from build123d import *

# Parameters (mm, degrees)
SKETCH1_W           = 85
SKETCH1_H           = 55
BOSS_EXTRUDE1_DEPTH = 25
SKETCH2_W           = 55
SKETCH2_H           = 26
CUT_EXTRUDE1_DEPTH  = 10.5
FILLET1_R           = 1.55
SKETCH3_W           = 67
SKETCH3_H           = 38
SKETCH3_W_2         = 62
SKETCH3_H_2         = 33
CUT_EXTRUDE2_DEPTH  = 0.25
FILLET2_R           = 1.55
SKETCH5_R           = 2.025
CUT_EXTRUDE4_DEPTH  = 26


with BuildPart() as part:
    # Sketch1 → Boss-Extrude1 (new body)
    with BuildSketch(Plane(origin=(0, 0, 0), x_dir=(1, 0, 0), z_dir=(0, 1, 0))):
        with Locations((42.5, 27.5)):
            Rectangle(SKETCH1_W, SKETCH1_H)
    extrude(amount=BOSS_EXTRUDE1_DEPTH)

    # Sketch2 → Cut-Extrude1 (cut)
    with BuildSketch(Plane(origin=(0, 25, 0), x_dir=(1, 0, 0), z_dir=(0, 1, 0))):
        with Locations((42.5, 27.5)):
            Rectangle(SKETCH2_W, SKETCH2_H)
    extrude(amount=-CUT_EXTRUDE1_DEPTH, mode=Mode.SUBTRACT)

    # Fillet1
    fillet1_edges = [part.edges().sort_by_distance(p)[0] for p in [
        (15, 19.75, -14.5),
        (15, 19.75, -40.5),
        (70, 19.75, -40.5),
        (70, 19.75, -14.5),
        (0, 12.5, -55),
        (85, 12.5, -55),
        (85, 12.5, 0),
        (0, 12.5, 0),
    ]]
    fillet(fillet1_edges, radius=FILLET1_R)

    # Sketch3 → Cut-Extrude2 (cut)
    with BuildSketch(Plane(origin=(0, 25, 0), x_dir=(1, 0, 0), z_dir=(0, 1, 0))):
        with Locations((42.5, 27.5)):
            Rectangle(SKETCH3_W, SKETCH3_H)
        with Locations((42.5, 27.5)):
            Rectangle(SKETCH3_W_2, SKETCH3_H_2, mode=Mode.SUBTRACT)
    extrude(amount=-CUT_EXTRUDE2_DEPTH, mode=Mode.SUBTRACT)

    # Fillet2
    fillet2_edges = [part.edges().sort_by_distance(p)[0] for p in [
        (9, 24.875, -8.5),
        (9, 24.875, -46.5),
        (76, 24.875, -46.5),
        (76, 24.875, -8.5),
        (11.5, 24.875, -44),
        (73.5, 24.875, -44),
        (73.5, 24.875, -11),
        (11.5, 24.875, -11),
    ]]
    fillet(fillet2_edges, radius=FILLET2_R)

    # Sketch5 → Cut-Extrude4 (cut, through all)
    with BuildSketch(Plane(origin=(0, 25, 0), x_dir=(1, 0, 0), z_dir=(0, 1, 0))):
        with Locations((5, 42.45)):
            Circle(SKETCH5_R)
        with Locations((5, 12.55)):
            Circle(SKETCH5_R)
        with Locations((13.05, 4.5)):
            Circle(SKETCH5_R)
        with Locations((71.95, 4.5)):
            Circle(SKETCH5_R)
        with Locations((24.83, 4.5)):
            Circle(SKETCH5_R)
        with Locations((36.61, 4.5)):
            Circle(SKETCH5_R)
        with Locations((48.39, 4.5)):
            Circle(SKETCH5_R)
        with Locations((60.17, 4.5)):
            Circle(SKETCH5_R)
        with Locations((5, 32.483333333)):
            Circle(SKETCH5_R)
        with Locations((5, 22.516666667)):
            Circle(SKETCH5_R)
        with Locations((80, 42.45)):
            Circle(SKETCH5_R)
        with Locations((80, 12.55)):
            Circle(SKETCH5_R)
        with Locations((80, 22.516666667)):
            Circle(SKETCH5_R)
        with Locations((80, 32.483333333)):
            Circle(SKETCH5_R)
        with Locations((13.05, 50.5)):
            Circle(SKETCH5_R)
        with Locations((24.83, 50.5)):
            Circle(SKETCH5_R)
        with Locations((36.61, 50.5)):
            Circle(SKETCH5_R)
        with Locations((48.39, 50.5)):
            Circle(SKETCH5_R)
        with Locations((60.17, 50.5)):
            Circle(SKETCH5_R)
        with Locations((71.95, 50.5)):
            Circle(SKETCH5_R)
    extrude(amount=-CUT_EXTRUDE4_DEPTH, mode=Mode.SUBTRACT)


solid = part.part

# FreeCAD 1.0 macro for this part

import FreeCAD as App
import Part
import Sketcher
from FreeCAD import Vector


def edges_at(feature, points):
    """Names of the edges that pass closest to the given points."""
    edges = feature.Shape.Edges
    near = lambda p: min(range(len(edges)), key=lambda i: edges[i].distToShape(Part.Vertex(*p))[0])
    return sorted({f"Edge{near(p) + 1}" for p in points})


def add_polygon(sketch, points):
    """Adds a closed chain of lines whose ends are joined by coincident constraints."""
    first, n = sketch.GeometryCount, len(points)
    for a, b in zip(points, points[1:] + points[:1]):
        sketch.addGeometry(Part.LineSegment(App.Vector(*a, 0), App.Vector(*b, 0)), False)
    for i in range(n):
        sketch.addConstraint(Sketcher.Constraint("Coincident", first + i, 2, first + (i + 1) % n, 1))

doc = App.newDocument("Part")
body = doc.addObject("PartDesign::Body", "Body")

sketch1 = body.newObject("Sketcher::SketchObject", "Sketch")
sketch1.AttachmentSupport = (doc.getObject("XZ_Plane"), [""])
sketch1.MapMode = "FlatFace"
add_polygon(sketch1, [(0, -55), (0, 0), (85, 0), (85, -55)])
sketch1.addConstraint([
    Sketcher.Constraint("Vertical", 0),
    Sketcher.Constraint("Horizontal", 1),
    Sketcher.Constraint("Vertical", 2),
    Sketcher.Constraint("Horizontal", 3),
    Sketcher.Constraint("Coincident", 0, 2, -1, 1),
    Sketcher.Constraint("DistanceX", 1, 1, 1, 2, 85.0),
    Sketcher.Constraint("DistanceY", 0, 1, 0, 2, 55.0),
])
pad1 = body.newObject("PartDesign::Pad", "Pad")
pad1.Profile = sketch1
pad1.Length = 25
pad1.Reversed = True

sketch2 = body.newObject("Sketcher::SketchObject", "Sketch001")
sketch2.AttachmentSupport = (doc.getObject("XZ_Plane"), [""])
sketch2.MapMode = "FlatFace"
sketch2.AttachmentOffset = App.Placement(Vector(0, 0, -25), App.Rotation())
add_polygon(sketch2, [(15, -40.5), (15, -14.5), (70, -14.5), (70, -40.5)])
sketch2.addConstraint([
    Sketcher.Constraint("Vertical", 0),
    Sketcher.Constraint("Horizontal", 1),
    Sketcher.Constraint("Vertical", 2),
    Sketcher.Constraint("Horizontal", 3),
    Sketcher.Constraint("DistanceX", 1, 1, 1, 2, 55.0),
    Sketcher.Constraint("DistanceY", 0, 1, 0, 2, 26.0),
    Sketcher.Constraint("DistanceX", -1, 1, 0, 2, 15.0),
    Sketcher.Constraint("DistanceY", 0, 2, -1, 1, 14.5),
])
pocket1 = body.newObject("PartDesign::Pocket", "Pocket")
pocket1.Profile = sketch2
pocket1.Length = 10.5
pocket1.Reversed = True
doc.recompute()

fillet = body.newObject("PartDesign::Fillet", "Fillet")
fillet.Base = (pocket1, edges_at(pocket1, [
    (15, 19.75, -14.5),
    (15, 19.75, -40.5),
    (70, 19.75, -40.5),
    (70, 19.75, -14.5),
    (0, 12.5, -55),
    (85, 12.5, -55),
    (85, 12.5, 0),
    (0, 12.5, 0),
]))
fillet.Radius = 1.55

sketch3 = body.newObject("Sketcher::SketchObject", "Sketch002")
sketch3.AttachmentSupport = (doc.getObject("XZ_Plane"), [""])
sketch3.MapMode = "FlatFace"
sketch3.AttachmentOffset = App.Placement(Vector(0, 0, -25), App.Rotation())
add_polygon(sketch3, [(9, -46.5), (9, -8.5), (76, -8.5), (76, -46.5)])
add_polygon(sketch3, [(73.5, -11), (11.5, -11), (11.5, -44), (73.5, -44)])
sketch3.addConstraint([
    Sketcher.Constraint("Vertical", 0),
    Sketcher.Constraint("Horizontal", 1),
    Sketcher.Constraint("Vertical", 2),
    Sketcher.Constraint("Horizontal", 3),
    Sketcher.Constraint("Horizontal", 4),
    Sketcher.Constraint("Vertical", 5),
    Sketcher.Constraint("Horizontal", 6),
    Sketcher.Constraint("Vertical", 7),
    Sketcher.Constraint("DistanceX", 1, 1, 1, 2, 67.0),
    Sketcher.Constraint("DistanceX", 4, 2, 4, 1, 62.0),
    Sketcher.Constraint("DistanceY", 0, 1, 0, 2, 38.0),
    Sketcher.Constraint("DistanceY", 5, 2, 5, 1, 33.0),
    Sketcher.Constraint("DistanceX", -1, 1, 0, 2, 9.0),
    Sketcher.Constraint("DistanceY", 4, 2, -1, 1, 11.0),
    Sketcher.Constraint("DistanceY", 0, 2, -1, 1, 8.5),
    Sketcher.Constraint("DistanceX", -1, 1, 4, 2, 11.5),
])
pocket2 = body.newObject("PartDesign::Pocket", "Pocket001")
pocket2.Profile = sketch3
pocket2.Length = 0.25
pocket2.Reversed = True
doc.recompute()

fillet2 = body.newObject("PartDesign::Fillet", "Fillet001")
fillet2.Base = (pocket2, edges_at(pocket2, [
    (9, 24.875, -8.5),
    (9, 24.875, -46.5),
    (76, 24.875, -46.5),
    (76, 24.875, -8.5),
    (11.5, 24.875, -44),
    (73.5, 24.875, -44),
    (73.5, 24.875, -11),
    (11.5, 24.875, -11),
]))
fillet2.Radius = 1.55

sketch4 = body.newObject("Sketcher::SketchObject", "Sketch003")
sketch4.AttachmentSupport = (doc.getObject("XZ_Plane"), [""])
sketch4.MapMode = "FlatFace"
sketch4.AttachmentOffset = App.Placement(Vector(0, 0, -25), App.Rotation())
sketch4.addGeometry([
    Part.Circle(Vector(5, -42.45, 0), Vector(0, 0, 1), 2.025),
    Part.Circle(Vector(5, -12.55, 0), Vector(0, 0, 1), 2.025),
    Part.Circle(Vector(13.05, -4.5, 0), Vector(0, 0, 1), 2.025),
    Part.Circle(Vector(71.95, -4.5, 0), Vector(0, 0, 1), 2.025),
    Part.Circle(Vector(24.83, -4.5, 0), Vector(0, 0, 1), 2.025),
    Part.Circle(Vector(36.61, -4.5, 0), Vector(0, 0, 1), 2.025),
    Part.Circle(Vector(48.39, -4.5, 0), Vector(0, 0, 1), 2.025),
    Part.Circle(Vector(60.17, -4.5, 0), Vector(0, 0, 1), 2.025),
    Part.Circle(Vector(5, -32.483333, 0), Vector(0, 0, 1), 2.025),
    Part.Circle(Vector(5, -22.516667, 0), Vector(0, 0, 1), 2.025),
    Part.Circle(Vector(80, -42.45, 0), Vector(0, 0, 1), 2.025),
    Part.Circle(Vector(80, -12.55, 0), Vector(0, 0, 1), 2.025),
    Part.Circle(Vector(80, -22.516667, 0), Vector(0, 0, 1), 2.025),
    Part.Circle(Vector(80, -32.483333, 0), Vector(0, 0, 1), 2.025),
    Part.Circle(Vector(13.05, -50.5, 0), Vector(0, 0, 1), 2.025),
    Part.Circle(Vector(24.83, -50.5, 0), Vector(0, 0, 1), 2.025),
    Part.Circle(Vector(36.61, -50.5, 0), Vector(0, 0, 1), 2.025),
    Part.Circle(Vector(48.39, -50.5, 0), Vector(0, 0, 1), 2.025),
    Part.Circle(Vector(60.17, -50.5, 0), Vector(0, 0, 1), 2.025),
    Part.Circle(Vector(71.95, -50.5, 0), Vector(0, 0, 1), 2.025),
], False)
sketch4.addConstraint([
    Sketcher.Constraint("Equal", 0, 1),
    Sketcher.Constraint("Equal", 1, 2),
    Sketcher.Constraint("Equal", 2, 3),
    Sketcher.Constraint("Equal", 3, 4),
    Sketcher.Constraint("Equal", 4, 5),
    Sketcher.Constraint("Equal", 5, 6),
    Sketcher.Constraint("Equal", 6, 7),
    Sketcher.Constraint("Equal", 7, 8),
    Sketcher.Constraint("Equal", 8, 9),
    Sketcher.Constraint("Equal", 9, 10),
    Sketcher.Constraint("Equal", 10, 11),
    Sketcher.Constraint("Equal", 11, 12),
    Sketcher.Constraint("Equal", 12, 13),
    Sketcher.Constraint("Equal", 13, 14),
    Sketcher.Constraint("Equal", 14, 15),
    Sketcher.Constraint("Equal", 15, 16),
    Sketcher.Constraint("Equal", 16, 17),
    Sketcher.Constraint("Equal", 17, 18),
    Sketcher.Constraint("Equal", 18, 19),
    Sketcher.Constraint("Horizontal", 2, 3, 3, 3),
    Sketcher.Constraint("Horizontal", 3, 3, 4, 3),
    Sketcher.Constraint("Horizontal", 4, 3, 5, 3),
    Sketcher.Constraint("Horizontal", 5, 3, 6, 3),
    Sketcher.Constraint("Horizontal", 6, 3, 7, 3),
    Sketcher.Constraint("Horizontal", 0, 3, 10, 3),
    Sketcher.Constraint("Horizontal", 1, 3, 11, 3),
    Sketcher.Constraint("Horizontal", 9, 3, 12, 3),
    Sketcher.Constraint("Horizontal", 8, 3, 13, 3),
    Sketcher.Constraint("Horizontal", 14, 3, 15, 3),
    Sketcher.Constraint("Horizontal", 15, 3, 16, 3),
    Sketcher.Constraint("Horizontal", 16, 3, 17, 3),
    Sketcher.Constraint("Horizontal", 17, 3, 18, 3),
    Sketcher.Constraint("Horizontal", 18, 3, 19, 3),
    Sketcher.Constraint("Vertical", 0, 3, 1, 3),
    Sketcher.Constraint("Vertical", 1, 3, 8, 3),
    Sketcher.Constraint("Vertical", 8, 3, 9, 3),
    Sketcher.Constraint("Vertical", 10, 3, 11, 3),
    Sketcher.Constraint("Vertical", 11, 3, 12, 3),
    Sketcher.Constraint("Vertical", 12, 3, 13, 3),
    Sketcher.Constraint("Vertical", 2, 3, 14, 3),
    Sketcher.Constraint("Vertical", 4, 3, 15, 3),
    Sketcher.Constraint("Vertical", 5, 3, 16, 3),
    Sketcher.Constraint("Vertical", 6, 3, 17, 3),
    Sketcher.Constraint("Vertical", 7, 3, 18, 3),
    Sketcher.Constraint("Vertical", 3, 3, 19, 3),
    Sketcher.Constraint("Diameter", 0, 4.05),
    Sketcher.Constraint("DistanceX", -1, 1, 0, 3, 5.0),
    Sketcher.Constraint("DistanceX", -1, 1, 10, 3, 80.0),
    Sketcher.Constraint("DistanceY", 14, 3, 2, 3, 46.0),
    Sketcher.Constraint("DistanceY", 2, 3, -1, 1, 4.5),
    Sketcher.Constraint("DistanceY", 0, 3, 1, 3, 29.9),
    Sketcher.Constraint("DistanceX", 2, 3, 3, 3, 58.9),
    Sketcher.Constraint("DistanceY", 0, 3, -1, 1, 42.45),
    Sketcher.Constraint("DistanceX", -1, 1, 2, 3, 13.05),
    Sketcher.Constraint("DistanceX", -1, 1, 4, 3, 24.83),
    Sketcher.Constraint("DistanceX", -1, 1, 5, 3, 36.61),
    Sketcher.Constraint("DistanceX", -1, 1, 6, 3, 48.39),
    Sketcher.Constraint("DistanceX", -1, 1, 7, 3, 60.17),
    Sketcher.Constraint("DistanceY", 8, 3, -1, 1, 32.483333),
    Sketcher.Constraint("DistanceY", 9, 3, -1, 1, 22.516667),
])
pocket3 = body.newObject("PartDesign::Pocket", "Pocket002")
pocket3.Profile = sketch4
pocket3.Type = "ThroughAll"
pocket3.Reversed = True

doc.recompute()
